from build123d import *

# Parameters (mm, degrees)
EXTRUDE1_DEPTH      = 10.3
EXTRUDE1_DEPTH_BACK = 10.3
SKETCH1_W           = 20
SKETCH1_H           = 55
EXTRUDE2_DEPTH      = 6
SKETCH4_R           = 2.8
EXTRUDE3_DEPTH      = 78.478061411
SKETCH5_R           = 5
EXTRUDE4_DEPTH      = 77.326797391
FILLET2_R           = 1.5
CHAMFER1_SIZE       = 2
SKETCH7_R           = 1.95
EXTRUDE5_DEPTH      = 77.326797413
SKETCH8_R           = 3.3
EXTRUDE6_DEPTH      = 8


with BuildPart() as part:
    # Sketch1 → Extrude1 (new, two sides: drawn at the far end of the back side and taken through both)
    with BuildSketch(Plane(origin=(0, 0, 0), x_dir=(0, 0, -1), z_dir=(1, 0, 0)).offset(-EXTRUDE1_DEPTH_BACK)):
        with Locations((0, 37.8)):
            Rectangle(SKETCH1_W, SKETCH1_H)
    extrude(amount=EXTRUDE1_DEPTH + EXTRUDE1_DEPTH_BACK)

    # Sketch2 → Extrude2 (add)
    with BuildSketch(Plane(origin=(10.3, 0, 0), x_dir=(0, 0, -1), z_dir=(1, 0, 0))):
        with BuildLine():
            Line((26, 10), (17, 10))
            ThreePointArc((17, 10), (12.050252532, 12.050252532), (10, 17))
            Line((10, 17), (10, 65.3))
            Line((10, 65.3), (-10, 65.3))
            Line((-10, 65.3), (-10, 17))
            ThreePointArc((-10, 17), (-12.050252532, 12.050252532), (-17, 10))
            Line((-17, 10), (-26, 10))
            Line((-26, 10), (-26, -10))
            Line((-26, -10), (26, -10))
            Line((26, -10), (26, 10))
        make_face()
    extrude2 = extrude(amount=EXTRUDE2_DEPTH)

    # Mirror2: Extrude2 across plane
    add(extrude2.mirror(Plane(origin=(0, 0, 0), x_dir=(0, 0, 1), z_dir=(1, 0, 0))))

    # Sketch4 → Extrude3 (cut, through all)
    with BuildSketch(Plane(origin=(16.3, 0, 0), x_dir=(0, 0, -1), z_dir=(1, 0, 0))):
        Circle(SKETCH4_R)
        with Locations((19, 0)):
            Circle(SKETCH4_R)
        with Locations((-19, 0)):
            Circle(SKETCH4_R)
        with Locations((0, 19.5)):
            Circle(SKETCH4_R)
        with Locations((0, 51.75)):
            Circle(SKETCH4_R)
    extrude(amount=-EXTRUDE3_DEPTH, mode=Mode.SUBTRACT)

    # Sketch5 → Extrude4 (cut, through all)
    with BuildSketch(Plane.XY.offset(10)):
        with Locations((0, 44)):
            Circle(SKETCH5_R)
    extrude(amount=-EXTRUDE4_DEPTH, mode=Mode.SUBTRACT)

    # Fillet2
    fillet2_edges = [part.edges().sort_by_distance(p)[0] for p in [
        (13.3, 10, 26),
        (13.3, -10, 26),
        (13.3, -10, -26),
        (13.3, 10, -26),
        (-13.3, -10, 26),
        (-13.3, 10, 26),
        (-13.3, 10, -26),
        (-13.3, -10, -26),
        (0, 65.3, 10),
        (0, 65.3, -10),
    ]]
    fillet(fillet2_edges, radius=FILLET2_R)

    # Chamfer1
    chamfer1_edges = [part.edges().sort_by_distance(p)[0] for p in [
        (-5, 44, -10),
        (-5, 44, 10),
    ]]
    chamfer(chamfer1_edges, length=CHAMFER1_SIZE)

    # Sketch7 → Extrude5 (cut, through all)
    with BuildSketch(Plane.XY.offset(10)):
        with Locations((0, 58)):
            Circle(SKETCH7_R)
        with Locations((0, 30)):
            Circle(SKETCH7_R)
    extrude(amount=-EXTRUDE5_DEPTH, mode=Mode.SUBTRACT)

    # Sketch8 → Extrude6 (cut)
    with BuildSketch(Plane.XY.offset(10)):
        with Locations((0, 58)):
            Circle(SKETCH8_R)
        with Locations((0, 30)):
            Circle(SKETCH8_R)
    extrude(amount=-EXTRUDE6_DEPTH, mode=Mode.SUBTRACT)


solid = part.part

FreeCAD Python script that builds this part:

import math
import FreeCAD as App
import Part
import Sketcher


def edges_at(feature, points):
    """Names of the edges that pass closest to the given points."""
    edges = feature.Shape.Edges
    near = lambda p: min(range(len(edges)), key=lambda i: edges[i].distToShape(Part.Vertex(*p))[0])
    return sorted({f"Edge{near(p) + 1}" for p in points})


def add_polygon(sketch, points):
    """Adds a closed chain of lines whose ends are joined by coincident constraints."""
    first, n = sketch.GeometryCount, len(points)
    for a, b in zip(points, points[1:] + points[:1]):
        sketch.addGeometry(Part.LineSegment(App.Vector(*a, 0), App.Vector(*b, 0)), False)
    for i in range(n):
        sketch.addConstraint(Sketcher.Constraint("Coincident", first + i, 2, first + (i + 1) % n, 1))

doc = App.newDocument("Part")
params = doc.addObject("Spreadsheet::Sheet", "Params")
for row, (alias, value) in enumerate([
    ("sketch1_width", "55 mm"),
    ("sketch1_height", "20 mm"),
    ("pad1_length", "10.3 mm"),
    ("pad1_length2", "10.3 mm"),
    ("sketch2_radius", "7 mm"),
    ("sketch2_width", "20 mm"),
    ("sketch2_height", "9 mm"),
    ("sketch2_width2", "48.3 mm"),
    ("pad2_length", "6 mm"),
    ("sketch3_diameter", "5.6 mm"),
    ("sketch4_diameter", "10 mm"),
    ("fillet_radius", "1.5 mm"),
    ("chamfer_size", "2 mm"),
    ("sketch5_diameter", "3.9 mm"),
    ("sketch6_diameter", "6.6 mm"),
    ("pocket4_length", "8 mm"),
], start=1):
    params.set(f"A{row}", alias)
    params.set(f"B{row}", "=" + value)
    params.setAlias(f"B{row}", alias)

body = doc.addObject("PartDesign::Body", "Body")

# Sketch on YZ plane
sketch1 = body.newObject("Sketcher::SketchObject", "Sketch")
sketch1.AttachmentSupport = (doc.getObject("YZ_Plane"), [""])
sketch1.MapMode = "FlatFace"
add_polygon(sketch1, [(65, 10), (10, 10), (10, -10), (65, -10)])  # lines 0-3
sketch1.addConstraint(Sketcher.Constraint("Horizontal", 0))
sketch1.addConstraint(Sketcher.Constraint("Vertical", 1))
sketch1.addConstraint(Sketcher.Constraint("Horizontal", 2))
sketch1.addConstraint(Sketcher.Constraint("Vertical", 3))
sketch1.addConstraint(Sketcher.Constraint("DistanceX", 0, 2, 0, 1, 55.0))
sketch1.addConstraint(Sketcher.Constraint("DistanceY", 1, 2, 1, 1, 20.0))
sketch1.addConstraint(Sketcher.Constraint("DistanceY", -1, 1, 0, 2, 10.0))
sketch1.addConstraint(Sketcher.Constraint("DistanceX", -1, 1, 0, 2, 10.3))
sketch1.setExpression("Constraints[8]", "Params.sketch1_width")
sketch1.setExpression("Constraints[9]", "Params.sketch1_height")
pad1 = body.newObject("PartDesign::Pad", "Pad")
pad1.Profile = sketch1
pad1.Type = "TwoLengths"
pad1.setExpression("Length", "Params.pad1_length")
pad1.setExpression("Length2", "Params.pad1_length2")

# Sketch on YZ plane
sketch2 = body.newObject("Sketcher::SketchObject", "Sketch001")
sketch2.AttachmentSupport = (doc.getObject("YZ_Plane"), [""])
sketch2.MapMode = "FlatFace"
sketch2.AttachmentOffset = App.Placement(App.Vector(0, 0, 10.3), App.Rotation())
sketch2.addGeometry(Part.LineSegment(App.Vector(10, -26, 0), App.Vector(10, -17, 0)), False)
sketch2.addGeometry(Part.ArcOfCircle(Part.Circle(App.Vector(17, -17, 0), App.Vector(0, 0, 1), 7), math.radians(90), math.radians(180)), False)
sketch2.addGeometry(Part.LineSegment(App.Vector(17, -10, 0), App.Vector(65, -10, 0)), False)
sketch2.addGeometry(Part.LineSegment(App.Vector(65, -10, 0), App.Vector(65, 10, 0)), False)
sketch2.addGeometry(Part.LineSegment(App.Vector(65, 10, 0), App.Vector(17, 10, 0)), False)
sketch2.addGeometry(Part.ArcOfCircle(Part.Circle(App.Vector(17, 17, 0), App.Vector(0, 0, 1), 7), math.radians(-180), math.radians(-90)), False)
sketch2.addGeometry(Part.LineSegment(App.Vector(10, 17, 0), App.Vector(10, 26, 0)), False)
sketch2.addGeometry(Part.LineSegment(App.Vector(10, 26, 0), App.Vector(-10, 26, 0)), False)
sketch2.addGeometry(Part.LineSegment(App.Vector(-10, 26, 0), App.Vector(-10, -26, 0)), False)
sketch2.addGeometry(Part.LineSegment(App.Vector(-10, -26, 0), App.Vector(10, -26, 0)), False)
sketch2.addConstraint(Sketcher.Constraint("Tangent", 0, 2, 1, 2))
sketch2.addConstraint(Sketcher.Constraint("Tangent", 1, 1, 2, 1))
sketch2.addConstraint(Sketcher.Constraint("Coincident", 2, 2, 3, 1))
sketch2.addConstraint(Sketcher.Constraint("Coincident", 3, 2, 4, 1))
sketch2.addConstraint(Sketcher.Constraint("Tangent", 4, 2, 5, 2))
sketch2.addConstraint(Sketcher.Constraint("Tangent", 5, 1, 6, 1))
sketch2.addConstraint(Sketcher.Constraint("Coincident", 6, 2, 7, 1))
sketch2.addConstraint(Sketcher.Constraint("Coincident", 7, 2, 8, 1))
sketch2.addConstraint(Sketcher.Constraint("Coincident", 8, 2, 9, 1))
sketch2.addConstraint(Sketcher.Constraint("Coincident", 9, 2, 0, 1))
sketch2.addConstraint(Sketcher.Constraint("Vertical", 0))
sketch2.addConstraint(Sketcher.Constraint("Horizontal", 2))
sketch2.addConstraint(Sketcher.Constraint("Vertical", 3))
sketch2.addConstraint(Sketcher.Constraint("Horizontal", 4))
sketch2.addConstraint(Sketcher.Constraint("Vertical", 6))
sketch2.addConstraint(Sketcher.Constraint("Horizontal", 7))
sketch2.addConstraint(Sketcher.Constraint("Vertical", 8))
sketch2.addConstraint(Sketcher.Constraint("Horizontal", 9))
sketch2.addConstraint(Sketcher.Constraint("Equal", 1, 5))
sketch2.addConstraint(Sketcher.Constraint("Symmetric", 6, 2, 8, 2, -1, 1))
sketch2.addConstraint(Sketcher.Constraint("Symmetric", 1, 3, 5, 3, -1))
sketch2.addConstraint(Sketcher.Constraint("Equal", 9, 3))
sketch2.addConstraint(Sketcher.Constraint("Radius", 1, 7.0))
sketch2.addConstraint(Sketcher.Constraint("DistanceX", 7, 2, 7, 1, 20.0))
sketch2.addConstraint(Sketcher.Constraint("DistanceY", 0, 1, 0, 2, 9.0))
sketch2.addConstraint(Sketcher.Constraint("DistanceX", 2, 1, 2, 2, 48.3))
sketch2.setExpression("Constraints[22]", "Params.sketch2_radius")
sketch2.setExpression("Constraints[23]", "Params.sketch2_width")
sketch2.setExpression("Constraints[24]", "Params.sketch2_height")
sketch2.setExpression("Constraints[25]", "Params.sketch2_width2")
pad2 = body.newObject("PartDesign::Pad", "Pad001")
pad2.Profile = sketch2
pad2.setExpression("Length", "Params.pad2_length")
doc.recompute()

mirrored = body.newObject("PartDesign::Mirrored", "Mirrored")
mirrored.Originals = [pad2]
mirrored.MirrorPlane = (doc.getObject("YZ_Plane"), [""])
body.Tip = mirrored

# Sketch on YZ plane
sketch3 = body.newObject("Sketcher::SketchObject", "Sketch002")
sketch3.AttachmentSupport = (doc.getObject("YZ_Plane"), [""])
sketch3.MapMode = "FlatFace"
sketch3.AttachmentOffset = App.Placement(App.Vector(0, 0, 16.3), App.Rotation())
sketch3.addGeometry(Part.Circle(App.Vector(0, 0, 0), App.Vector(0, 0, 1), 2.8), False)
sketch3.addGeometry(Part.Circle(App.Vector(0, -19, 0), App.Vector(0, 0, 1), 2.8), False)
sketch3.addGeometry(Part.Circle(App.Vector(0, 19, 0), App.Vector(0, 0, 1), 2.8), False)
sketch3.addGeometry(Part.Circle(App.Vector(19.5, 0, 0), App.Vector(0, 0, 1), 2.8), False)
sketch3.addGeometry(Part.Circle(App.Vector(51.8, 0, 0), App.Vector(0, 0, 1), 2.8), False)
sketch3.addConstraint(Sketcher.Constraint("Coincident", 0, 3, -1, 1))
sketch3.addConstraint(Sketcher.Constraint("Equal", 0, 1))
sketch3.addConstraint(Sketcher.Constraint("Equal", 1, 2))
sketch3.addConstraint(Sketcher.Constraint("Equal", 2, 3))
sketch3.addConstraint(Sketcher.Constraint("Equal", 3, 4))
sketch3.addConstraint(Sketcher.Constraint("Symmetric", 1, 3, 2, 3, -1, 1))
sketch3.addConstraint(Sketcher.Constraint("PointOnObject", 1, 3, -2))
sketch3.addConstraint(Sketcher.Constraint("PointOnObject", 3, 3, -1))
sketch3.addConstraint(Sketcher.Constraint("PointOnObject", 4, 3, -1))
sketch3.addConstraint(Sketcher.Constraint("Diameter", 0, 5.6))
sketch3.addConstraint(Sketcher.Constraint("DistanceY", 1, 3, -1, 1, 19.0))
sketch3.addConstraint(Sketcher.Constraint("DistanceX", -1, 1, 3, 3, 19.5))
sketch3.addConstraint(Sketcher.Constraint("DistanceX", -1, 1, 4, 3, 51.75))
sketch3.setExpression("Constraints[9]", "Params.sketch3_diameter")
pocket1 = body.newObject("PartDesign::Pocket", "Pocket")
pocket1.Profile = sketch3
pocket1.Type = "ThroughAll"

# Sketch on XY plane
sketch4 = body.newObject("Sketcher::SketchObject", "Sketch003")
sketch4.AttachmentSupport = (doc.getObject("XY_Plane"), [""])
sketch4.MapMode = "FlatFace"
sketch4.AttachmentOffset = App.Placement(App.Vector(0, 0, 10), App.Rotation())
sketch4.addGeometry(Part.Circle(App.Vector(0, 44, 0), App.Vector(0, 0, 1), 5), False)
sketch4.addConstraint(Sketcher.Constraint("PointOnObject", 0, 3, -2))
sketch4.addConstraint(Sketcher.Constraint("Diameter", 0, 10.0))
sketch4.addConstraint(Sketcher.Constraint("DistanceY", -1, 1, 0, 3, 44.0))
sketch4.setExpression("Constraints[1]", "Params.sketch4_diameter")
pocket2 = body.newObject("PartDesign::Pocket", "Pocket001")
pocket2.Profile = sketch4
pocket2.Type = "ThroughAll"
doc.recompute()

fillet = body.newObject("PartDesign::Fillet", "Fillet")
fillet.Base = (pocket2, edges_at(pocket2, [
    (13.3, 10, 26),
    (13.3, -10, 26),
    (13.3, -10, -26),
    (13.3, 10, -26),
    (-13.3, -10, 26),
    (-13.3, 10, 26),
    (-13.3, 10, -26),
    (-13.3, -10, -26),
    (0, 65.3, 10),
    (0, 65.3, -10),
]))
fillet.setExpression("Radius", "Params.fillet_radius")
doc.recompute()

chamfer = body.newObject("PartDesign::Chamfer", "Chamfer")
chamfer.Base = (fillet, edges_at(fillet, [(-5, 44, -10), (-5, 44, 10)]))
chamfer.setExpression("Size", "Params.chamfer_size")

# Sketch on XY plane
sketch5 = body.newObject("Sketcher::SketchObject", "Sketch004")
sketch5.AttachmentSupport = (doc.getObject("XY_Plane"), [""])
sketch5.MapMode = "FlatFace"
sketch5.AttachmentOffset = App.Placement(App.Vector(0, 0, 10), App.Rotation())
sketch5.addGeometry(Part.Circle(App.Vector(0, 58, 0), App.Vector(0, 0, 1), 1.9), False)
sketch5.addGeometry(Part.Circle(App.Vector(0, 30, 0), App.Vector(0, 0, 1), 1.9), False)
sketch5.addConstraint(Sketcher.Constraint("Equal", 0, 1))
sketch5.addConstraint(Sketcher.Constraint("PointOnObject", 0, 3, -2))
sketch5.addConstraint(Sketcher.Constraint("PointOnObject", 1, 3, -2))
sketch5.addConstraint(Sketcher.Constraint("Diameter", 0, 3.9))
sketch5.addConstraint(Sketcher.Constraint("DistanceY", -1, 1, 0, 3, 58.0))
sketch5.addConstraint(Sketcher.Constraint("DistanceY", -1, 1, 1, 3, 30.0))
sketch5.setExpression("Constraints[3]", "Params.sketch5_diameter")
pocket3 = body.newObject("PartDesign::Pocket", "Pocket002")
pocket3.Profile = sketch5
pocket3.Type = "ThroughAll"

# Sketch on XY plane
sketch6 = body.newObject("Sketcher::SketchObject", "Sketch005")
sketch6.AttachmentSupport = (doc.getObject("XY_Plane"), [""])
sketch6.MapMode = "FlatFace"
sketch6.AttachmentOffset = App.Placement(App.Vector(0, 0, 10), App.Rotation())
sketch6.addGeometry(Part.Circle(App.Vector(0, 58, 0), App.Vector(0, 0, 1), 3.3), False)
sketch6.addGeometry(Part.Circle(App.Vector(0, 30, 0), App.Vector(0, 0, 1), 3.3), False)
sketch6.addConstraint(Sketcher.Constraint("Equal", 0, 1))
sketch6.addConstraint(Sketcher.Constraint("PointOnObject", 0, 3, -2))
sketch6.addConstraint(Sketcher.Constraint("PointOnObject", 1, 3, -2))
sketch6.addConstraint(Sketcher.Constraint("Diameter", 0, 6.6))
sketch6.addConstraint(Sketcher.Constraint("DistanceY", -1, 1, 0, 3, 58.0))
sketch6.addConstraint(Sketcher.Constraint("DistanceY", -1, 1, 1, 3, 30.0))
sketch6.setExpression("Constraints[3]", "Params.sketch6_diameter")
pocket4 = body.newObject("PartDesign::Pocket", "Pocket003")
pocket4.Profile = sketch6
pocket4.setExpression("Length", "Params.pocket4_length")

doc.recompute()
